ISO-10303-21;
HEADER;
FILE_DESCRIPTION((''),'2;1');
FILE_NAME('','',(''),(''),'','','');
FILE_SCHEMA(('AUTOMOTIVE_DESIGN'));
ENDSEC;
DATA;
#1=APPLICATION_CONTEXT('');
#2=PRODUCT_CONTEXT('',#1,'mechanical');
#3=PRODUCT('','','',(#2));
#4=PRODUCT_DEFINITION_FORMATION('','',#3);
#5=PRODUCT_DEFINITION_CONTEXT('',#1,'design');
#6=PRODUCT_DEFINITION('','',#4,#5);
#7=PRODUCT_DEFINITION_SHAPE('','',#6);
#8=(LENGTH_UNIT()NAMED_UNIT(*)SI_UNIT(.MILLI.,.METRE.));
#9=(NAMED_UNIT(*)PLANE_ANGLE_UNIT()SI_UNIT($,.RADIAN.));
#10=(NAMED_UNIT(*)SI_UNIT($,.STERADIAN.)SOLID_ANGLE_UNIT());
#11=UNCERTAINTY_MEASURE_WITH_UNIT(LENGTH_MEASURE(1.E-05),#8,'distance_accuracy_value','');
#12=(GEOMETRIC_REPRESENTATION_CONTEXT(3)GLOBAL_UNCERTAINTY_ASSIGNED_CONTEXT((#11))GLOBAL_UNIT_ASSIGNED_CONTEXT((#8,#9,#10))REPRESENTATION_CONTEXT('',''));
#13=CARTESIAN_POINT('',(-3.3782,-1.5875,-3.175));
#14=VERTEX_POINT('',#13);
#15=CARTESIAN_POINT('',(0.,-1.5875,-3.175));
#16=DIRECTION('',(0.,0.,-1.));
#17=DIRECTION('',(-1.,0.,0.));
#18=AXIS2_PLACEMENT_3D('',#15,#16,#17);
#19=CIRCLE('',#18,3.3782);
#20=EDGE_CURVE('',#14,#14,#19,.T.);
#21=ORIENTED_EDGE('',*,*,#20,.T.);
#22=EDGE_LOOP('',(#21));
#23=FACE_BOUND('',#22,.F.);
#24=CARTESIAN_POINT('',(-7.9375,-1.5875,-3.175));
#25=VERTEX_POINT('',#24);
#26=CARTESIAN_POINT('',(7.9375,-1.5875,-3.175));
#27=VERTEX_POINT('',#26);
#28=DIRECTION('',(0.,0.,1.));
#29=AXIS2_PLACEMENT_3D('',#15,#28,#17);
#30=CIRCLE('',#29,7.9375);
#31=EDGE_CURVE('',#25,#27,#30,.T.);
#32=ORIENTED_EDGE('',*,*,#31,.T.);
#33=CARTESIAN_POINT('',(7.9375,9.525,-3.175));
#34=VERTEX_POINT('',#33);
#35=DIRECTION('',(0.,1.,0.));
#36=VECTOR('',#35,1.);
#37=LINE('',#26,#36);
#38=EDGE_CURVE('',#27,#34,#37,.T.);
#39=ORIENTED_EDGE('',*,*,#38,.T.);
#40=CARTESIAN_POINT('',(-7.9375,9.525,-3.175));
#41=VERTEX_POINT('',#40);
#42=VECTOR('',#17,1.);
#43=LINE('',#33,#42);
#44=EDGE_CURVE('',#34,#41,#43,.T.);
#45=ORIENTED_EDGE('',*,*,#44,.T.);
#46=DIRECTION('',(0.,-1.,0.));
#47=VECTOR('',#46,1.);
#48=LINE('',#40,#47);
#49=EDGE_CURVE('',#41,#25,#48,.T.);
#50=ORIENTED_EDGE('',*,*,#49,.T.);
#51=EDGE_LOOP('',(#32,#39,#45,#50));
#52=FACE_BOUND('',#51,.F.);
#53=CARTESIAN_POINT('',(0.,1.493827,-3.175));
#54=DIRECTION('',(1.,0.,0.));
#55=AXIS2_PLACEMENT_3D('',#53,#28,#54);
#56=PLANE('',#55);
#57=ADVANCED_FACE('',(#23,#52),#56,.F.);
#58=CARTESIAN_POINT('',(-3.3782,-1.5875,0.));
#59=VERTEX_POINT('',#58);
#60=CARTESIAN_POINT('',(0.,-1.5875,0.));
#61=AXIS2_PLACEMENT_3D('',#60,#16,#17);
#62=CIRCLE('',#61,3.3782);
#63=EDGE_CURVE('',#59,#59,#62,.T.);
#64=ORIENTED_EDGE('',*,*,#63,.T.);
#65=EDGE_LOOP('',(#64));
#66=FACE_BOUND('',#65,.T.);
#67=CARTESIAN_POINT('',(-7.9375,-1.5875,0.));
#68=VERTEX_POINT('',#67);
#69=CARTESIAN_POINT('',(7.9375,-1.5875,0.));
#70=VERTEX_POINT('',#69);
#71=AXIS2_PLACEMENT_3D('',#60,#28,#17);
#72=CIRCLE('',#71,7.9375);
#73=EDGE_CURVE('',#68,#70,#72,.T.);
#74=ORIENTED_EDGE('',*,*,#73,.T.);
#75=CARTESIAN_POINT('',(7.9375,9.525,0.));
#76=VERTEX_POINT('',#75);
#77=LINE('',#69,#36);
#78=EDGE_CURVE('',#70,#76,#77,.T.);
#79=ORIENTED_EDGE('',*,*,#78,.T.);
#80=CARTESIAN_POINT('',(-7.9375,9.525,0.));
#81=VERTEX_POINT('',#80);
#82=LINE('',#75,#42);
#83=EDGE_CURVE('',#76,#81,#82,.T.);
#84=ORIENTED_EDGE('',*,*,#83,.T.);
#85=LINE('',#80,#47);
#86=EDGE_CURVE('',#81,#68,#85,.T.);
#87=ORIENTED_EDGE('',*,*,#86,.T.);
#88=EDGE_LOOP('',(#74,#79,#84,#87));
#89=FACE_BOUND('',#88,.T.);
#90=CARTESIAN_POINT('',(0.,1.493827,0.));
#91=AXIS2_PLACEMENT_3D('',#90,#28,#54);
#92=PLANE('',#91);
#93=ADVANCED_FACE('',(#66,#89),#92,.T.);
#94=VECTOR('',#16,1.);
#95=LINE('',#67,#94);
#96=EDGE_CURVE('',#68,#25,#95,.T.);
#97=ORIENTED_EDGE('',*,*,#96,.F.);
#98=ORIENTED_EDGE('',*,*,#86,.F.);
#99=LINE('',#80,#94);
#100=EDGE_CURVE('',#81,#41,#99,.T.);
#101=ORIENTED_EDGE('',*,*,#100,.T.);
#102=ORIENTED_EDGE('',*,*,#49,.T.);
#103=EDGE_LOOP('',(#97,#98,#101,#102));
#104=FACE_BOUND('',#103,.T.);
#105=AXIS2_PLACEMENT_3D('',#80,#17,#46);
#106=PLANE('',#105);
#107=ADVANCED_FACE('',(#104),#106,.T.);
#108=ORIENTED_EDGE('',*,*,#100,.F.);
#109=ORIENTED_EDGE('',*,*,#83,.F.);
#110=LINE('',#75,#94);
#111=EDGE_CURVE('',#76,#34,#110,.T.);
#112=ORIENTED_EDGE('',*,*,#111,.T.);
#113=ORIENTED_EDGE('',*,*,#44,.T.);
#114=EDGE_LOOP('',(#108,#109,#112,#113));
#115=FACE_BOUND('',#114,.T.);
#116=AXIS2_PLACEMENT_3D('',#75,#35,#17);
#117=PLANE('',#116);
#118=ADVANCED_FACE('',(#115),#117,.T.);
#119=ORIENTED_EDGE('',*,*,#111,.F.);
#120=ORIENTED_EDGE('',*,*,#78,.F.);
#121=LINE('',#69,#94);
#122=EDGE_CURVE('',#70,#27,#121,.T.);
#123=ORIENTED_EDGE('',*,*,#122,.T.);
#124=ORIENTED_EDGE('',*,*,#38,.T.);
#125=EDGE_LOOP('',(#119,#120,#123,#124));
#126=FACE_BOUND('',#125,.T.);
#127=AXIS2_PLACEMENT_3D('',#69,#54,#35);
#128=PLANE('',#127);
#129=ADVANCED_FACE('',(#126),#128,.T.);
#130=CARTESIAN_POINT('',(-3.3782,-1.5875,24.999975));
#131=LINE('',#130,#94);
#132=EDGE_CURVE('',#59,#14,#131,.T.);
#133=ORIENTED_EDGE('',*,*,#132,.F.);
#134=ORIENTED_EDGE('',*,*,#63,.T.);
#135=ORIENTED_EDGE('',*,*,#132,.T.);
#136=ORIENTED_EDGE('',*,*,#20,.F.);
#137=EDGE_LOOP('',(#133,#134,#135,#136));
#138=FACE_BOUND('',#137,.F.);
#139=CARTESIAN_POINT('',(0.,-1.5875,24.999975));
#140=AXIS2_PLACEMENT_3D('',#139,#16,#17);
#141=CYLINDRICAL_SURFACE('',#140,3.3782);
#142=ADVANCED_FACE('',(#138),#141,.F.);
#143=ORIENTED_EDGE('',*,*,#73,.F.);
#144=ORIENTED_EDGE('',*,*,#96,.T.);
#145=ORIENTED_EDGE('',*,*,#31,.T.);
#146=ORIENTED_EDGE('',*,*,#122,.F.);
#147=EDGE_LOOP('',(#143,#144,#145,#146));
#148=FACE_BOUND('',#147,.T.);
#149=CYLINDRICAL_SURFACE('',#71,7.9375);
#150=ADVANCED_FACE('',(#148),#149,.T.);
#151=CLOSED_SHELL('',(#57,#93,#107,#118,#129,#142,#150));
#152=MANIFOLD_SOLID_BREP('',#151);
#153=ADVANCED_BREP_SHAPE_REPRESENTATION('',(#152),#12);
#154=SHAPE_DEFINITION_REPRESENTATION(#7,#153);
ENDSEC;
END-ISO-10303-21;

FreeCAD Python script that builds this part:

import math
import FreeCAD as App
import Part
import Sketcher

V = App.Vector
Q = App.Units.Quantity

doc = App.newDocument("Part")
body = doc.addObject("PartDesign::Body", "Body")

# Sketch on XY plane
sketch1 = body.newObject("Sketcher::SketchObject", "Sketch")
sketch1.AttachmentSupport = (doc.getObject("XY_Plane"), [""])
sketch1.MapMode = "FlatFace"
sketch1.addGeometry(Part.LineSegment(V(8, -2, 0), V(8, 10, 0)), False)
sketch1.addGeometry(Part.LineSegment(V(8, 10, 0), V(-8, 10, 0)), False)
sketch1.addGeometry(Part.LineSegment(V(-8, 10, 0), V(-8, -2, 0)), False)
sketch1.addGeometry(Part.ArcOfCircle(Part.Circle(V(0, -2, 0), V(0, 0, 1), 8), math.radians(180), math.radians(360)), False)
sketch1.addConstraint(Sketcher.Constraint("Coincident", 0, 2, 1, 1))
sketch1.addConstraint(Sketcher.Constraint("Coincident", 1, 2, 2, 1))
sketch1.addConstraint(Sketcher.Constraint("Tangent", 2, 2, 3, 1))
sketch1.addConstraint(Sketcher.Constraint("Tangent", 3, 2, 0, 1))
sketch1.addConstraint(Sketcher.Constraint("Vertical", 0))
sketch1.addConstraint(Sketcher.Constraint("Horizontal", 1))
sketch1.addConstraint(Sketcher.Constraint("Vertical", 2))
sketch1.addConstraint(Sketcher.Constraint("PointOnObject", 3, 3, -2))
sketch1.addConstraint(Sketcher.Constraint("Radius", 3, Q("0.3125 in")))
sketch1.addConstraint(Sketcher.Constraint("DistanceY", 0, 1, 0, 2, Q("0.4375 in")))
sketch1.addConstraint(Sketcher.Constraint("DistanceY", 3, 3, -1, 1, Q("0.0625 in")))
pad1 = body.newObject("PartDesign::Pad", "Pad")
pad1.Profile = sketch1
pad1.Length = Q("0.125 in")
pad1.Reversed = True

# Sketch on XY plane
sketch2 = body.newObject("Sketcher::SketchObject", "Sketch001")
sketch2.AttachmentSupport = (doc.getObject("XY_Plane"), [""])
sketch2.MapMode = "FlatFace"
sketch2.addGeometry(Part.Circle(V(0, -1.6, 0), V(0, 0, 1), 3.4), False)
sketch2.addConstraint(Sketcher.Constraint("PointOnObject", 0, 3, -2))
sketch2.addConstraint(Sketcher.Constraint("Diameter", 0, Q("0.266 in")))
sketch2.addConstraint(Sketcher.Constraint("DistanceY", 0, 3, -1, 1, Q("0.0625 in")))
doc.recompute()
hole = body.newObject("PartDesign::Hole", "Hole")
hole.Profile = sketch2
hole.ThreadType = "None"
hole.Diameter = Q("0.266 in")
hole.DepthType = "ThroughAll"

doc.recompute()
